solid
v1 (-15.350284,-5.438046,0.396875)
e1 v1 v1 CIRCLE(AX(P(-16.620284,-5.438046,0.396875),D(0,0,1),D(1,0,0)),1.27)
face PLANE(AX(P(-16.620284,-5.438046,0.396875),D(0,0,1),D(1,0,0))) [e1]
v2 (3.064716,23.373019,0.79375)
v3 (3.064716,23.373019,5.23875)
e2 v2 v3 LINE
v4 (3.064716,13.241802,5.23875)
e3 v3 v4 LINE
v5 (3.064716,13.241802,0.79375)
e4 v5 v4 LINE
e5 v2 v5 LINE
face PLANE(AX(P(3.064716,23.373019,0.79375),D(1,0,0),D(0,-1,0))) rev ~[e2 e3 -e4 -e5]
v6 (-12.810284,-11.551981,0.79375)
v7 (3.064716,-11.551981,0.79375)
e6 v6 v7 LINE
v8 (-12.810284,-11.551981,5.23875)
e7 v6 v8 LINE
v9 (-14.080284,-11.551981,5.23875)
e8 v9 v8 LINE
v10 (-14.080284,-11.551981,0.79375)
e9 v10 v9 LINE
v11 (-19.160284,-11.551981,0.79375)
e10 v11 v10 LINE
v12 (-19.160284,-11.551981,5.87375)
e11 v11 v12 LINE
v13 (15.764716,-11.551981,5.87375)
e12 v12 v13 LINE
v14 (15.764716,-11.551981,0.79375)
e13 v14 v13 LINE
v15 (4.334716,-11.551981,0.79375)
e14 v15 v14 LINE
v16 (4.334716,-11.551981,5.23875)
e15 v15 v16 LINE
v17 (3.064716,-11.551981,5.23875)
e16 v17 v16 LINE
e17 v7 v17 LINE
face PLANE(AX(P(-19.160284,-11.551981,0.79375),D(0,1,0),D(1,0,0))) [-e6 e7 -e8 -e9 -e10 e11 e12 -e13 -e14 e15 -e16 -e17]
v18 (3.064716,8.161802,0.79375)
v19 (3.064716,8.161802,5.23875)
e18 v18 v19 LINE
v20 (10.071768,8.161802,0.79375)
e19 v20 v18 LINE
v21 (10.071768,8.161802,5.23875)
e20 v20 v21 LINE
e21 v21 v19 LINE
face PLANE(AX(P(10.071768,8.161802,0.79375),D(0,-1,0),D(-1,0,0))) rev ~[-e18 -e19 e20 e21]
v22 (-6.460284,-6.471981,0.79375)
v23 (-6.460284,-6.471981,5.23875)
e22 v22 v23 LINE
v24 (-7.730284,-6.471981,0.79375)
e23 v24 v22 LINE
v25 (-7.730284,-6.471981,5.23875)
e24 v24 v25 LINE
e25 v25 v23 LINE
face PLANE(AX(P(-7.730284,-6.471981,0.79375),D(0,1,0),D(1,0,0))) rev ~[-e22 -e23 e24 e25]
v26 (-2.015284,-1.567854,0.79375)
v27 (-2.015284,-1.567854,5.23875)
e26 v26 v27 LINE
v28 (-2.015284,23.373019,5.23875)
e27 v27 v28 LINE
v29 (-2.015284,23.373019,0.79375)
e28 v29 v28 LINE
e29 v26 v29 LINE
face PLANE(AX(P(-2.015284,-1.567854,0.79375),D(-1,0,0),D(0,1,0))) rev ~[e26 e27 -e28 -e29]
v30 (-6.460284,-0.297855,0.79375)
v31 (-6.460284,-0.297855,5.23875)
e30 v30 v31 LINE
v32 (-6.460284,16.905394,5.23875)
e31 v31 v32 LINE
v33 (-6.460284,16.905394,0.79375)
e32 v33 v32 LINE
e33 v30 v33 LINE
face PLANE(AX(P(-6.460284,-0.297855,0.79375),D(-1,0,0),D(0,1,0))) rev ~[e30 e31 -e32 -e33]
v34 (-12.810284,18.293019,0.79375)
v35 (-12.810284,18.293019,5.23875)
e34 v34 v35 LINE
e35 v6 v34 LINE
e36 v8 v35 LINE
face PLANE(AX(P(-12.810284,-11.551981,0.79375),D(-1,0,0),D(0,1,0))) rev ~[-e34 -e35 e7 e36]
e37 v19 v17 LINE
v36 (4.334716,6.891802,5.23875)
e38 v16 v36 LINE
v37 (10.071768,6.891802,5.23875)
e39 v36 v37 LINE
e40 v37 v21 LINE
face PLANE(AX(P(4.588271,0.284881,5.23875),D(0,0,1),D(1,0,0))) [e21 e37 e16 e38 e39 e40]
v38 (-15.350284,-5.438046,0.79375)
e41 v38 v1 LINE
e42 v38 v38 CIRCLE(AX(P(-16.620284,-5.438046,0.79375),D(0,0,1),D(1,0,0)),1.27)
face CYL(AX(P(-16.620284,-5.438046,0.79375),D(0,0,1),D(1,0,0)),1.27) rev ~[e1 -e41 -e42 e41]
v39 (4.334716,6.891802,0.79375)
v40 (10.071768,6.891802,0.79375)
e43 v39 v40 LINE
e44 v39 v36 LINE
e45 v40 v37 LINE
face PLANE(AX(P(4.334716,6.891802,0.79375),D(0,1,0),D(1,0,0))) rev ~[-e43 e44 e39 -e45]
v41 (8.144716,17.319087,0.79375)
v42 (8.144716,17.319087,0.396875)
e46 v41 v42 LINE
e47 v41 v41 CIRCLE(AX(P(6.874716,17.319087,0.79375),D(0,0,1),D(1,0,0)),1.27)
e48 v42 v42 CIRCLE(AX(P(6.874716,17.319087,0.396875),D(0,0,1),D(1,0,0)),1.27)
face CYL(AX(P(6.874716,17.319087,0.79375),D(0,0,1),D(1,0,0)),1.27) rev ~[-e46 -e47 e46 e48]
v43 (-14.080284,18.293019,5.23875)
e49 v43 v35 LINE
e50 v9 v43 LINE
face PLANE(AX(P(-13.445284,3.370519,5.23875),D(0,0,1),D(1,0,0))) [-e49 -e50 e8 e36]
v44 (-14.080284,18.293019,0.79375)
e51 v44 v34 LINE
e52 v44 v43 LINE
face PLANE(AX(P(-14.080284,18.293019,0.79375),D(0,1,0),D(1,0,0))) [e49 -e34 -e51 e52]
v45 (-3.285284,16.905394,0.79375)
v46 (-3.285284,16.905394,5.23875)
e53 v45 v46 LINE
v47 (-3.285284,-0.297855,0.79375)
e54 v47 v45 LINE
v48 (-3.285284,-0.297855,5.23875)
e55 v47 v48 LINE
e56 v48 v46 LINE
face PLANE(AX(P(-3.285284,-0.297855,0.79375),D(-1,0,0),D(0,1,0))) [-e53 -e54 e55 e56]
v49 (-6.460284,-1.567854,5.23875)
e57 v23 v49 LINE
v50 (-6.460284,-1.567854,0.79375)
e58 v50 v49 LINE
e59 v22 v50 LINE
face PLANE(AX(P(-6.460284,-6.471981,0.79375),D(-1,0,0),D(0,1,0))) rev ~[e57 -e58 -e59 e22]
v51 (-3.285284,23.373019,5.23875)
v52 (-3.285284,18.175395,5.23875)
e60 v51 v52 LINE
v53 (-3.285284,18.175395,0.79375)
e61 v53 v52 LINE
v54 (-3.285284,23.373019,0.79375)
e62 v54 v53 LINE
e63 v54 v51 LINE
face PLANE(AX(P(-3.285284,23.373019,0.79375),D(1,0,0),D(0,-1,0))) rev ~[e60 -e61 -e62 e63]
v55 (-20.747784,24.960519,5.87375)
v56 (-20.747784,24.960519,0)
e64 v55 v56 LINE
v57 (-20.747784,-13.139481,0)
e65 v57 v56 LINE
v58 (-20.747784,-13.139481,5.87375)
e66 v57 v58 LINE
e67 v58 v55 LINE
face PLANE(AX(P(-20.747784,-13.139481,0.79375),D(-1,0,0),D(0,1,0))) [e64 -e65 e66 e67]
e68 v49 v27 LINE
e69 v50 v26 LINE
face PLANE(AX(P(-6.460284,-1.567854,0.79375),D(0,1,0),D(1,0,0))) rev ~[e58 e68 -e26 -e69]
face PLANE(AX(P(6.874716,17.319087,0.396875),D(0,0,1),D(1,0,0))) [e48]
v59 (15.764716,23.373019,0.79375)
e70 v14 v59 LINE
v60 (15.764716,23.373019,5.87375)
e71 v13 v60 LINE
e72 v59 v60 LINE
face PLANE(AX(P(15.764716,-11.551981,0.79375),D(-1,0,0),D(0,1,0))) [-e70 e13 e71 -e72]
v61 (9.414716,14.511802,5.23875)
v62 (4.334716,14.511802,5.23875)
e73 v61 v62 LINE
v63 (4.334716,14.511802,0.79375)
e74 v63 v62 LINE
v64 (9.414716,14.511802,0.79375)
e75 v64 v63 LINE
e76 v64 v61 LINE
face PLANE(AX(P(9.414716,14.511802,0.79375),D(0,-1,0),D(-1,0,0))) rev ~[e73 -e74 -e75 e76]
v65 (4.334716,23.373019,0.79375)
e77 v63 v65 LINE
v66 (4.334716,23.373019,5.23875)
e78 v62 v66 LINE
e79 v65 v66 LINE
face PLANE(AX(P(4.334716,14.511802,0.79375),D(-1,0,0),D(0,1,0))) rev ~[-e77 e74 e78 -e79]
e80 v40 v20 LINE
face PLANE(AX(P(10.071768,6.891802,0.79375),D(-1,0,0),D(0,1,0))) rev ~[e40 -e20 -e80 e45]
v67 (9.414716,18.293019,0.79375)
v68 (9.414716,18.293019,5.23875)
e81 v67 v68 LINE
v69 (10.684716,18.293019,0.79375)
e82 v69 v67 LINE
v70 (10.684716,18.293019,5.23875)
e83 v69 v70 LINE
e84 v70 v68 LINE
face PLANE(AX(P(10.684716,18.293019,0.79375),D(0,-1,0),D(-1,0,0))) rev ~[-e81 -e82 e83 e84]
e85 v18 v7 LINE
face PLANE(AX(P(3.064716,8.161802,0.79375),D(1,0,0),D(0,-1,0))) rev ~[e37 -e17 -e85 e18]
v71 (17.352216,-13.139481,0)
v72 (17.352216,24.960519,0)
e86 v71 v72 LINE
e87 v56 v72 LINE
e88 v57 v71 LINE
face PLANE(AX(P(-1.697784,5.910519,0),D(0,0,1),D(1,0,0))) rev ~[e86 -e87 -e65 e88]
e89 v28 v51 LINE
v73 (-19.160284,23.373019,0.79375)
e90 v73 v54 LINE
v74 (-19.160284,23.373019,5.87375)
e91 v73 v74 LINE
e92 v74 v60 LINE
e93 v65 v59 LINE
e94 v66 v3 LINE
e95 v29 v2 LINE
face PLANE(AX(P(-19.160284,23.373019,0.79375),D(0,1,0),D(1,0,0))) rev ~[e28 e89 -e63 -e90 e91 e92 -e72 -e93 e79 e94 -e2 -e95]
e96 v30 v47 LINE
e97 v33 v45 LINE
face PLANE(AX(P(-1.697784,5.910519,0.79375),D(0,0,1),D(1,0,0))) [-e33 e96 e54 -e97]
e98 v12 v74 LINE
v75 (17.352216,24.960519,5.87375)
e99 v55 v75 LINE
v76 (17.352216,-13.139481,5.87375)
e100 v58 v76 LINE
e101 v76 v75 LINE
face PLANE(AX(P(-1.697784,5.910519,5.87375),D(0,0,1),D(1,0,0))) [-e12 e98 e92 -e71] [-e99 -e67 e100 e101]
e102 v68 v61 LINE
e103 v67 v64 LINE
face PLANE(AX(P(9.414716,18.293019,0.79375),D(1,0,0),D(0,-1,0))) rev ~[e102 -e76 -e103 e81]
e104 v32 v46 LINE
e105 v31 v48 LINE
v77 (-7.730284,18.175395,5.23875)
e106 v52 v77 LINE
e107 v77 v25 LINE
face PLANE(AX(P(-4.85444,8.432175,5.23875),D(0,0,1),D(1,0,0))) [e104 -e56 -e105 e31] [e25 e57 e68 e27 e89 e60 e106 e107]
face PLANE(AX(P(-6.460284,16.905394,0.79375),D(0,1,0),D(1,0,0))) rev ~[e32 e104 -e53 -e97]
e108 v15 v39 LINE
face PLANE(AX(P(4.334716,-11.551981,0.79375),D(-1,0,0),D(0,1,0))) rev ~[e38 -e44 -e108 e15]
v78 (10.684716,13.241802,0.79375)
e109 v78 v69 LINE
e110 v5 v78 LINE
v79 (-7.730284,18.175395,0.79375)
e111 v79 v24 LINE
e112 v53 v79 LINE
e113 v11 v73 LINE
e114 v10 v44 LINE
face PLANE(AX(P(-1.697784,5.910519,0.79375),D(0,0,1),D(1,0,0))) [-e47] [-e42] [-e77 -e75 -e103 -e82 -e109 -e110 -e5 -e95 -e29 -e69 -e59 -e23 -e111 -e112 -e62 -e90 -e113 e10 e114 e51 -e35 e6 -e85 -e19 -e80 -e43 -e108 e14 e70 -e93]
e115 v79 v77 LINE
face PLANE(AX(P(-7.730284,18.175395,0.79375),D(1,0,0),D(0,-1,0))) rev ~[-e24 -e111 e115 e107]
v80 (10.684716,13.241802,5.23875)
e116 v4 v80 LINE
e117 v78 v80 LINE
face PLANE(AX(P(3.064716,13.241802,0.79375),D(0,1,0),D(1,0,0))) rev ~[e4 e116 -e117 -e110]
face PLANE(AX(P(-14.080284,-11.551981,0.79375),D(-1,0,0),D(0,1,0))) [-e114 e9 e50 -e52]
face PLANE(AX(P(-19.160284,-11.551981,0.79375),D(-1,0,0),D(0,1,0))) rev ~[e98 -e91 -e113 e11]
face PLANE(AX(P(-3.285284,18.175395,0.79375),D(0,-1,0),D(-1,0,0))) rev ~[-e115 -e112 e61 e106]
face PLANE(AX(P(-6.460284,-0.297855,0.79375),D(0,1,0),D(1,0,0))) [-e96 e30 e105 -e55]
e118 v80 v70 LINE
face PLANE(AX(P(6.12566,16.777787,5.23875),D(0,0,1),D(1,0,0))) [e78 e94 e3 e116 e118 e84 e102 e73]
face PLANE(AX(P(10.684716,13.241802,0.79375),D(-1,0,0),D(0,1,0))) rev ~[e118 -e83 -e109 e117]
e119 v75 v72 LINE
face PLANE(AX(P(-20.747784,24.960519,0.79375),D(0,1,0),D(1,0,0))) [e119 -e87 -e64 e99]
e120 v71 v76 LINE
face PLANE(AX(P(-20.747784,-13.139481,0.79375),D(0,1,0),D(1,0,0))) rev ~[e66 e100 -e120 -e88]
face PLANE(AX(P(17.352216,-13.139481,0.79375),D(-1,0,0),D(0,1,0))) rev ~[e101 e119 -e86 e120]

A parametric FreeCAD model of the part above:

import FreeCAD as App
import Part
import Sketcher

V = App.Vector
Q = App.Units.Quantity


def add_polygon(sketch, points):
    """Adds a closed chain of lines whose ends are joined by coincident constraints."""
    first, n = sketch.GeometryCount, len(points)
    for a, b in zip(points, points[1:] + points[:1]):
        sketch.addGeometry(Part.LineSegment(App.Vector(*a, 0), App.Vector(*b, 0)), False)
    for i in range(n):
        sketch.addConstraint(Sketcher.Constraint("Coincident", first + i, 2, first + (i + 1) % n, 1))

doc = App.newDocument("Part")
body = doc.addObject("PartDesign::Body", "Body")

sketch1 = body.newObject("Sketcher::SketchObject", "Sketch")
sketch1.AttachmentSupport = (doc.getObject("XY_Plane"), [""])
sketch1.MapMode = "FlatFace"
add_polygon(sketch1, [(-21, 25), (-21, -13), (17, -13), (17, 25)])
sketch1.addConstraint([
    Sketcher.Constraint("Vertical", 0),
    Sketcher.Constraint("Horizontal", 1),
    Sketcher.Constraint("Vertical", 2),
    Sketcher.Constraint("Horizontal", 3),
    Sketcher.Constraint("Equal", 3, 0),
    Sketcher.Constraint("DistanceX", 1, 1, 1, 2, Q("1.5 in")),
    Sketcher.Constraint("DistanceY", 0, 2, -1, 1, Q("13.139481 mm")),
    Sketcher.Constraint("DistanceX", 0, 2, -1, 1, Q("20.747784 mm")),
])
pad1 = body.newObject("PartDesign::Pad", "Pad")
pad1.Profile = sketch1
pad1.Length = Q("0.03125 in")

sketch2 = body.newObject("Sketcher::SketchObject", "Sketch001")
sketch2.AttachmentSupport = (doc.getObject("XY_Plane"), [""])
sketch2.MapMode = "FlatFace"
sketch2.AttachmentOffset = App.Placement(V(0, 0, 0.03125 * 25.4), App.Rotation())
add_polygon(sketch2, [(-21, 25), (-21, -13), (17, -13), (17, 25)])
add_polygon(sketch2, [(16, -12), (-19, -12), (-19, 23), (16, 23)])
sketch2.addConstraint([
    Sketcher.Constraint("Vertical", 0),
    Sketcher.Constraint("Horizontal", 1),
    Sketcher.Constraint("Vertical", 2),
    Sketcher.Constraint("Horizontal", 3),
    Sketcher.Constraint("Horizontal", 4),
    Sketcher.Constraint("Vertical", 5),
    Sketcher.Constraint("Horizontal", 6),
    Sketcher.Constraint("Vertical", 7),
    Sketcher.Constraint("Equal", 3, 0),
    Sketcher.Constraint("Equal", 6, 5),
    Sketcher.Constraint("DistanceX", 1, 1, 1, 2, Q("1.5 in")),
    Sketcher.Constraint("DistanceX", 4, 2, 4, 1, Q("1.375 in")),
    Sketcher.Constraint("DistanceX", 0, 2, 4, 2, Q("0.0625 in")),
    Sketcher.Constraint("DistanceY", 0, 2, 4, 2, Q("0.0625 in")),
    Sketcher.Constraint("DistanceY", 0, 2, -1, 1, Q("13.139481 mm")),
    Sketcher.Constraint("DistanceX", 0, 2, -1, 1, Q("20.747784 mm")),
])
pad2 = body.newObject("PartDesign::Pad", "Pad001")
pad2.Profile = sketch2
pad2.Length = Q("0.2 in")

sketch3 = body.newObject("Sketcher::SketchObject", "Sketch002")
sketch3.AttachmentSupport = (doc.getObject("XY_Plane"), [""])
sketch3.MapMode = "FlatFace"
sketch3.AttachmentOffset = App.Placement(V(0, 0, 0.03125 * 25.4), App.Rotation())
sketch3.addGeometry([
    Part.Circle(V(-16.6, -5.4, 0), V(0, 0, 1), 1.3),
    Part.Circle(V(6.9, 17.3, 0), V(0, 0, 1), 1.3),
], False)
sketch3.addConstraint([
    Sketcher.Constraint("Equal", 0, 1),
    Sketcher.Constraint("Diameter", 0, Q("0.1 in")),
    Sketcher.Constraint("DistanceX", 0, 3, 1, 3, Q("0.925 in")),
    Sketcher.Constraint("DistanceX", 0, 3, -1, 1, Q("16.620284 mm")),
    Sketcher.Constraint("DistanceY", 0, 3, -1, 1, Q("5.438046 mm")),
    Sketcher.Constraint("DistanceY", -1, 1, 1, 3, Q("17.319087 mm")),
])
pocket1 = body.newObject("PartDesign::Pocket", "Pocket")
pocket1.Profile = sketch3
pocket1.Length = Q("0.015625 in")

sketch4 = body.newObject("Sketcher::SketchObject", "Sketch003")
sketch4.AttachmentSupport = (doc.getObject("XY_Plane"), [""])
sketch4.MapMode = "FlatFace"
sketch4.AttachmentOffset = App.Placement(V(0, 0, 0.03125 * 25.4), App.Rotation())
add_polygon(sketch4, [(-14.1, 18.3), (-14.1, -11.6), (-12.8, -11.6), (-12.8, 18.3)])
add_polygon(sketch4, [(-2, 23.4), (-3.3, 23.4), (-3.3, 18.2), (-7.7, 18.2), (-7.7, -6.5), (-6.5, -6.5), (-6.5, -1.6), (-2, -1.6)])
add_polygon(sketch4, [(-3.3, -0.3), (-6.5, -0.3), (-6.5, 16.9), (-3.3, 16.9)])
add_polygon(sketch4, [(3.1, 8.2), (3.1, -11.6), (4.3, -11.6), (4.3, 6.9), (10.1, 6.9), (10.1, 8.2)])
add_polygon(sketch4, [(3.1, 23.4), (3.1, 13.2), (10.7, 13.2), (10.7, 18.3), (9.4, 18.3), (9.4, 14.5), (4.3, 14.5), (4.3, 23.4)])
sketch4.addConstraint([
    Sketcher.Constraint("Vertical", 0),
    Sketcher.Constraint("Horizontal", 1),
    Sketcher.Constraint("Vertical", 2),
    Sketcher.Constraint("Horizontal", 3),
    Sketcher.Constraint("Horizontal", 4),
    Sketcher.Constraint("Vertical", 5),
    Sketcher.Constraint("Horizontal", 6),
    Sketcher.Constraint("Vertical", 7),
    Sketcher.Constraint("Horizontal", 8),
    Sketcher.Constraint("Vertical", 9),
    Sketcher.Constraint("Horizontal", 10),
    Sketcher.Constraint("Vertical", 11),
    Sketcher.Constraint("Horizontal", 12),
    Sketcher.Constraint("Vertical", 13),
    Sketcher.Constraint("Horizontal", 14),
    Sketcher.Constraint("Vertical", 15),
    Sketcher.Constraint("Vertical", 16),
    Sketcher.Constraint("Horizontal", 17),
    Sketcher.Constraint("Vertical", 18),
    Sketcher.Constraint("Horizontal", 19),
    Sketcher.Constraint("Vertical", 20),
    Sketcher.Constraint("Horizontal", 21),
    Sketcher.Constraint("Vertical", 22),
    Sketcher.Constraint("Horizontal", 23),
    Sketcher.Constraint("Vertical", 24),
    Sketcher.Constraint("Horizontal", 25),
    Sketcher.Constraint("Vertical", 26),
    Sketcher.Constraint("Horizontal", 27),
    Sketcher.Constraint("Vertical", 28),
    Sketcher.Constraint("Horizontal", 29),
    Sketcher.Constraint("Horizontal", 1, 2, 16, 2),
    Sketcher.Constraint("Horizontal", 3, 2, 24, 2),
    Sketcher.Constraint("Horizontal", 11, 2, 28, 2),
    Sketcher.Constraint("Vertical", 9, 2, 12, 2),
    Sketcher.Constraint("Vertical", 5, 2, 14, 2),
    Sketcher.Constraint("Vertical", 21, 2, 22, 2),
    Sketcher.Constraint("Vertical", 18, 2, 27, 2),
    Sketcher.Constraint("Equal", 3, 4),
    Sketcher.Constraint("Equal", 4, 8),
    Sketcher.Constraint("Equal", 8, 17),
    Sketcher.Constraint("Equal", 17, 25),
    Sketcher.Constraint("Equal", 29, 20),
    Sketcher.Constraint("DistanceX", 23, 1, 23, 2, Q("0.3 in")),
    Sketcher.Constraint("DistanceX", 27, 2, 27, 1, Q("0.2 in")),
    Sketcher.Constraint("DistanceY", 2, 2, 4, 2, Q("0.2 in")),
    Sketcher.Constraint("DistanceX", 2, 2, 6, 2, Q("0.2 in")),
    Sketcher.Constraint("DistanceY", 1, 2, 7, 2, Q("0.2 in")),
    Sketcher.Constraint("DistanceX", 10, 2, 16, 2, Q("0.2 in")),
    Sketcher.Constraint("DistanceY", 21, 2, 22, 2, Q("0.2 in")),
    Sketcher.Constraint("DistanceX", 6, 2, 6, 1, Q("0.175 in")),
    Sketcher.Constraint("DistanceY", 0, 2, 0, 1, Q("1.175 in")),
    Sketcher.Constraint("DistanceY", 9, 2, 12, 2, Q("0.05 in")),
    Sketcher.Constraint("DistanceY", 13, 2, 6, 2, Q("0.05 in")),
    Sketcher.Constraint("DistanceY", 23, 2, 26, 2, Q("0.05 in")),
    Sketcher.Constraint("DistanceY", 13, 1, 13, 2, Q("17.203249 mm")),
    Sketcher.Constraint("DistanceX", 19, 1, 19, 2, Q("5.737052 mm")),
    Sketcher.Constraint("DistanceY", 5, 2, 5, 1, Q("5.197624 mm")),
    Sketcher.Constraint("DistanceY", 16, 2, 16, 1, Q("19.713783 mm")),
    Sketcher.Constraint("DistanceY", 0, 2, -1, 1, Q("11.551981 mm")),
    Sketcher.Constraint("DistanceX", 0, 2, -1, 1, Q("14.080284 mm")),
])
pad3 = body.newObject("PartDesign::Pad", "Pad002")
pad3.Profile = sketch4
pad3.Length = Q("0.175 in")

doc.recompute()
